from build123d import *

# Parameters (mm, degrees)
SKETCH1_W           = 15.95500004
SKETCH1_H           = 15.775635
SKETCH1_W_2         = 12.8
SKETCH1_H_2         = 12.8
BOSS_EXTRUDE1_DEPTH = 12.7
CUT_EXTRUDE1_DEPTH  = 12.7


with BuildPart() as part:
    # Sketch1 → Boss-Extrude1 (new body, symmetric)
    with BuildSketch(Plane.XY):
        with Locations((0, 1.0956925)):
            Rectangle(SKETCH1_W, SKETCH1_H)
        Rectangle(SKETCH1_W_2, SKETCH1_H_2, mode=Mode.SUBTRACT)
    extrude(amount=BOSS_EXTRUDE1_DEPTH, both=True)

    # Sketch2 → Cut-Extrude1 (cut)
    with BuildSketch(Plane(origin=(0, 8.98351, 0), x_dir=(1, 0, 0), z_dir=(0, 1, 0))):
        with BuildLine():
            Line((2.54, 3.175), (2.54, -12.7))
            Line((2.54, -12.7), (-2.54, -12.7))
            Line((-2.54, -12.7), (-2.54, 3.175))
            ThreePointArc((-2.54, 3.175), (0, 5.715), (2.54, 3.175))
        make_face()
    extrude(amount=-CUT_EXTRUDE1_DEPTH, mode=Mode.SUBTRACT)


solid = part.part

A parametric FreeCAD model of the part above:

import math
import FreeCAD as App
import Part
import Sketcher
Q = App.Units.Quantity

doc = App.newDocument("Part")
body = doc.addObject("PartDesign::Body", "Body")

sketch1 = body.newObject("Sketcher::SketchObject", "Sketch")
sketch1.AttachmentSupport = (doc.getObject("XY_Plane"), [""])
sketch1.MapMode = "FlatFace"
sketch1.addGeometry([
    Part.LineSegment(App.Vector(-8, 9, 0), App.Vector(-8, -7, 0)),
    Part.LineSegment(App.Vector(-8, -7, 0), App.Vector(8, -7, 0)),
    Part.LineSegment(App.Vector(8, -7, 0), App.Vector(8, 9, 0)),
    Part.LineSegment(App.Vector(8, 9, 0), App.Vector(-8, 9, 0)),
    Part.LineSegment(App.Vector(6, -6, 0), App.Vector(-6, -6, 0)),
    Part.LineSegment(App.Vector(-6, -6, 0), App.Vector(-6, 6, 0)),
    Part.LineSegment(App.Vector(-6, 6, 0), App.Vector(6, 6, 0)),
    Part.LineSegment(App.Vector(6, 6, 0), App.Vector(6, -6, 0)),
], False)
sketch1.addConstraint([
    Sketcher.Constraint("Coincident", 0, 2, 1, 1),
    Sketcher.Constraint("Coincident", 1, 2, 2, 1),
    Sketcher.Constraint("Coincident", 2, 2, 3, 1),
    Sketcher.Constraint("Coincident", 3, 2, 0, 1),
    Sketcher.Constraint("Coincident", 4, 2, 5, 1),
    Sketcher.Constraint("Coincident", 5, 2, 6, 1),
    Sketcher.Constraint("Coincident", 6, 2, 7, 1),
    Sketcher.Constraint("Coincident", 7, 2, 4, 1),
    Sketcher.Constraint("Vertical", 0),
    Sketcher.Constraint("Horizontal", 1),
    Sketcher.Constraint("Vertical", 2),
    Sketcher.Constraint("Horizontal", 3),
    Sketcher.Constraint("Horizontal", 4),
    Sketcher.Constraint("Vertical", 5),
    Sketcher.Constraint("Horizontal", 6),
    Sketcher.Constraint("Vertical", 7),
    Sketcher.Constraint("Symmetric", 4, 2, 6, 2, -1, 1),
    Sketcher.Constraint("Equal", 6, 5),
    Sketcher.Constraint("DistanceX", 1, 1, 1, 2, Q("15.955 mm")),
    Sketcher.Constraint("DistanceX", 4, 2, 4, 1, Q("12.8 mm")),
    Sketcher.Constraint("DistanceX", 0, 2, -1, 1, Q("7.9775 mm")),
    Sketcher.Constraint("DistanceY", 0, 2, 0, 1, Q("15.775635 mm")),
    Sketcher.Constraint("DistanceY", -1, 1, 2, 2, Q("8.98351 mm")),
])
pad1 = body.newObject("PartDesign::Pad", "Pad")
pad1.Profile = sketch1
pad1.Length = Q("1 in")
pad1.Midplane = True

sketch2 = body.newObject("Sketcher::SketchObject", "Sketch001")
sketch2.AttachmentSupport = (doc.getObject("XZ_Plane"), [""])
sketch2.MapMode = "FlatFace"
sketch2.AttachmentOffset = App.Placement(App.Vector(0, 0, -8.98351), App.Rotation())
sketch2.addGeometry([
    Part.LineSegment(App.Vector(2.5, 12.7, 0), App.Vector(2.5, -3.2, 0)),
    Part.ArcOfCircle(Part.Circle(App.Vector(0, -3.2, 0), App.Vector(0, 0, 1), 2.5), math.radians(180), math.radians(360)),
    Part.LineSegment(App.Vector(-2.5, -3.2, 0), App.Vector(-2.5, 12.7, 0)),
    Part.LineSegment(App.Vector(-2.5, 12.7, 0), App.Vector(2.5, 12.7, 0)),
], False)
sketch2.addConstraint([
    Sketcher.Constraint("Tangent", 0, 2, 1, 2),
    Sketcher.Constraint("Tangent", 1, 1, 2, 1),
    Sketcher.Constraint("Coincident", 2, 2, 3, 1),
    Sketcher.Constraint("Coincident", 3, 2, 0, 1),
    Sketcher.Constraint("Vertical", 0),
    Sketcher.Constraint("Vertical", 2),
    Sketcher.Constraint("Horizontal", 3),
    Sketcher.Constraint("PointOnObject", 1, 3, -2),
    Sketcher.Constraint("Radius", 1, Q("0.1 in")),
    Sketcher.Constraint("DistanceY", -1, 1, 2, 2, Q("0.5 in")),
    Sketcher.Constraint("DistanceY", 0, 2, 0, 1, Q("0.625 in")),
])
pocket1 = body.newObject("PartDesign::Pocket", "Pocket")
pocket1.Profile = sketch2
pocket1.Length = Q("0.5 in")
pocket1.Reversed = True

doc.recompute()
